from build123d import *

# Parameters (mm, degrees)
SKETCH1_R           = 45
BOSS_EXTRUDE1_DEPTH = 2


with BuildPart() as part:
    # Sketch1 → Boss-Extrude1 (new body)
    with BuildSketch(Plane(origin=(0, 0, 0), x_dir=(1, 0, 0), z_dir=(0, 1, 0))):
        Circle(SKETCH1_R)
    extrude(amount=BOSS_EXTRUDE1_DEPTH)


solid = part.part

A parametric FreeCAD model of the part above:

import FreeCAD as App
import Part
import Sketcher

V = App.Vector

doc = App.newDocument("Part")
body = doc.addObject("PartDesign::Body", "Body")

sketch1 = body.newObject("Sketcher::SketchObject", "Sketch")
sketch1.AttachmentSupport = (doc.getObject("XZ_Plane"), [""])
sketch1.MapMode = "FlatFace"
sketch1.addGeometry(Part.Circle(V(0, 0, 0), V(0, 0, 1), 45), False)
sketch1.addConstraint(Sketcher.Constraint("Coincident", 0, 3, -1, 1))
sketch1.addConstraint(Sketcher.Constraint("Diameter", 0, 90.0))
pad1 = body.newObject("PartDesign::Pad", "Pad")
pad1.Profile = sketch1
pad1.Length = 2
pad1.Reversed = True

doc.recompute()
